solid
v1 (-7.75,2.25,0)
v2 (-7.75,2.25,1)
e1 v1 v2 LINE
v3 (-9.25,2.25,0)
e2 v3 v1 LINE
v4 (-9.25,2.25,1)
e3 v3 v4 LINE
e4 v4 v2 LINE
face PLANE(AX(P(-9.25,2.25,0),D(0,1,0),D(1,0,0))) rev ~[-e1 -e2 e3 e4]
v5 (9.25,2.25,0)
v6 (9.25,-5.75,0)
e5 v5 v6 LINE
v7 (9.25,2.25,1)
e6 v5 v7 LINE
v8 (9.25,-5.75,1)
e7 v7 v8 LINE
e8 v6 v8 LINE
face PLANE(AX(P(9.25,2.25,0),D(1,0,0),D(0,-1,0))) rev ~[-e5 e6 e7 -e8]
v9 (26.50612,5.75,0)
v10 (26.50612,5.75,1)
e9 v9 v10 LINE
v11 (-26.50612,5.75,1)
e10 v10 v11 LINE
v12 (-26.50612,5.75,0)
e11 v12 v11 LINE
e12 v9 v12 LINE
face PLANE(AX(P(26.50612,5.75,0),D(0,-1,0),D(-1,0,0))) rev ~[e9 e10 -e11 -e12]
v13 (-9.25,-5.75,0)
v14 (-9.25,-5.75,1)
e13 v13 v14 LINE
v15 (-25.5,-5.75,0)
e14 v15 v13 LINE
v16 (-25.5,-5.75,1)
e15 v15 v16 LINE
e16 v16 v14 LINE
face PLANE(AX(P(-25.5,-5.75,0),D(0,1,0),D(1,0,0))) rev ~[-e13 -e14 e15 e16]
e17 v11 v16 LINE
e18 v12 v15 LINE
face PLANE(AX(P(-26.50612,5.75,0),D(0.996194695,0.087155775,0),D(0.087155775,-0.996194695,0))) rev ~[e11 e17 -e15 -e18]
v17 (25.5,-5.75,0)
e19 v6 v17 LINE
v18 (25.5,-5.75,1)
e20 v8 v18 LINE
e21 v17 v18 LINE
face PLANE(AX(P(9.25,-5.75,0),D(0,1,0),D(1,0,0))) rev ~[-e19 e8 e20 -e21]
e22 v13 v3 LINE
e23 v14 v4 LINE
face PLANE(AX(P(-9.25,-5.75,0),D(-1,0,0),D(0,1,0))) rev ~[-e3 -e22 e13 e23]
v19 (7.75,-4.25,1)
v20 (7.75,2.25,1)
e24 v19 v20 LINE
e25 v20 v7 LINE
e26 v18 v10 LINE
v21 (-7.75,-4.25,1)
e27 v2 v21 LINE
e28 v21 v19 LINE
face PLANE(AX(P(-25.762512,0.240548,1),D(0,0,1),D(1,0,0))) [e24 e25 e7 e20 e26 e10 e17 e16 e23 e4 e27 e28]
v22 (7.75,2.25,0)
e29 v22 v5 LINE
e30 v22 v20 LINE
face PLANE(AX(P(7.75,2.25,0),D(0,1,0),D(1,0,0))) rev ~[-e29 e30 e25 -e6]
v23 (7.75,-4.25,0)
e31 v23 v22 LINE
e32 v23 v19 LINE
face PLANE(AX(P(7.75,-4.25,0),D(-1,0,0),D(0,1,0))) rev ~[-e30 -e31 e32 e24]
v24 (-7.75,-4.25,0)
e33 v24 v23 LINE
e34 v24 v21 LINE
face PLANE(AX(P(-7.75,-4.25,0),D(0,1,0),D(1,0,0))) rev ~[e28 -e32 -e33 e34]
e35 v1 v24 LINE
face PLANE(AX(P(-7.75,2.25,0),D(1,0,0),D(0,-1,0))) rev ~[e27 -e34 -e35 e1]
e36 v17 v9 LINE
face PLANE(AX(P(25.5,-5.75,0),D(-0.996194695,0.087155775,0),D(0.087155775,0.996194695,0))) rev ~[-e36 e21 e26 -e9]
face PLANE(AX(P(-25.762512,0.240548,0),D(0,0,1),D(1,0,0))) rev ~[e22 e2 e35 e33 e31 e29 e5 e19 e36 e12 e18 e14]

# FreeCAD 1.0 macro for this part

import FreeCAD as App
import Part
import Sketcher
from FreeCAD import Vector
Q = App.Units.Quantity

doc = App.newDocument("Part")
params = doc.addObject("Spreadsheet::Sheet", "Params")
for row, (alias, value) in enumerate([
    ("sketch1_height", "8 mm"),
    ("sketch1_width", "1.5 mm"),
    ("sketch1_width2", "15.5 mm"),
    ("sketch1_height2", "6.5 mm"),
    ("sketch1_width3", "16.25 mm"),
    ("pad1_length", "1 mm"),
], start=1):
    params.set(f"A{row}", alias)
    params.set(f"B{row}", "=" + value)
    params.setAlias(f"B{row}", alias)

body = doc.addObject("PartDesign::Body", "Body")

# Sketch on XY plane
sketch1 = doc.addObject("Sketcher::SketchObject", "Sketch")
body.addObject(sketch1)
sketch1.AttachmentSupport = (doc.XY_Plane, [""])
sketch1.MapMode = "FlatFace"
sketch1.addGeometry(Part.LineSegment(Vector(-26.5, 5.8, 0), Vector(-25.5, -5.8, 0)), False)
sketch1.addGeometry(Part.LineSegment(Vector(-25.5, -5.8, 0), Vector(-9.2, -5.8, 0)), False)
sketch1.addGeometry(Part.LineSegment(Vector(-9.2, -5.8, 0), Vector(-9.2, 2.2, 0)), False)
sketch1.addGeometry(Part.LineSegment(Vector(-9.2, 2.2, 0), Vector(-7.8, 2.2, 0)), False)
sketch1.addGeometry(Part.LineSegment(Vector(-7.8, 2.2, 0), Vector(-7.8, -4.2, 0)), False)
sketch1.addGeometry(Part.LineSegment(Vector(-7.8, -4.2, 0), Vector(7.8, -4.2, 0)), False)
sketch1.addGeometry(Part.LineSegment(Vector(7.8, -4.2, 0), Vector(7.8, 2.2, 0)), False)
sketch1.addGeometry(Part.LineSegment(Vector(7.8, 2.2, 0), Vector(9.2, 2.2, 0)), False)
sketch1.addGeometry(Part.LineSegment(Vector(9.2, 2.2, 0), Vector(9.2, -5.8, 0)), False)
sketch1.addGeometry(Part.LineSegment(Vector(9.2, -5.8, 0), Vector(25.5, -5.8, 0)), False)
sketch1.addGeometry(Part.LineSegment(Vector(25.5, -5.8, 0), Vector(26.5, 5.8, 0)), False)
sketch1.addGeometry(Part.LineSegment(Vector(26.5, 5.8, 0), Vector(-26.5, 5.8, 0)), False)
sketch1.addConstraint(Sketcher.Constraint("Coincident", 0, 2, 1, 1))
sketch1.addConstraint(Sketcher.Constraint("Coincident", 1, 2, 2, 1))
sketch1.addConstraint(Sketcher.Constraint("Coincident", 2, 2, 3, 1))
sketch1.addConstraint(Sketcher.Constraint("Coincident", 3, 2, 4, 1))
sketch1.addConstraint(Sketcher.Constraint("Coincident", 4, 2, 5, 1))
sketch1.addConstraint(Sketcher.Constraint("Coincident", 5, 2, 6, 1))
sketch1.addConstraint(Sketcher.Constraint("Coincident", 6, 2, 7, 1))
sketch1.addConstraint(Sketcher.Constraint("Coincident", 7, 2, 8, 1))
sketch1.addConstraint(Sketcher.Constraint("Coincident", 8, 2, 9, 1))
sketch1.addConstraint(Sketcher.Constraint("Coincident", 9, 2, 10, 1))
sketch1.addConstraint(Sketcher.Constraint("Coincident", 10, 2, 11, 1))
sketch1.addConstraint(Sketcher.Constraint("Coincident", 11, 2, 0, 1))
sketch1.addConstraint(Sketcher.Constraint("Horizontal", 1))
sketch1.addConstraint(Sketcher.Constraint("Vertical", 2))
sketch1.addConstraint(Sketcher.Constraint("Horizontal", 3))
sketch1.addConstraint(Sketcher.Constraint("Vertical", 4))
sketch1.addConstraint(Sketcher.Constraint("Horizontal", 5))
sketch1.addConstraint(Sketcher.Constraint("Vertical", 6))
sketch1.addConstraint(Sketcher.Constraint("Horizontal", 7))
sketch1.addConstraint(Sketcher.Constraint("Vertical", 8))
sketch1.addConstraint(Sketcher.Constraint("Horizontal", 9))
sketch1.addConstraint(Sketcher.Constraint("Horizontal", 11))
sketch1.addConstraint(Sketcher.Constraint("Symmetric", 3, 2, 6, 2, -2))
sketch1.addConstraint(Sketcher.Constraint("Symmetric", 1, 2, 8, 2, -2))
sketch1.addConstraint(Sketcher.Constraint("Equal", 1, 9))
sketch1.addConstraint(Sketcher.Constraint("Equal", 0, 10))
sketch1.addConstraint(Sketcher.Constraint("DistanceY", 2, 1, 2, 2, Q("8 mm")))
sketch1.addConstraint(Sketcher.Constraint("Angle", 0, Q("-84.999998 deg")))
sketch1.addConstraint(Sketcher.Constraint("DistanceX", 3, 1, 3, 2, Q("1.5 mm")))
sketch1.addConstraint(Sketcher.Constraint("DistanceX", 5, 1, 5, 2, Q("15.5 mm")))
sketch1.addConstraint(Sketcher.Constraint("DistanceY", 4, 2, 4, 1, Q("6.5 mm")))
sketch1.addConstraint(Sketcher.Constraint("DistanceY", 5, 2, 10, 2, Q("10 mm")))
sketch1.addConstraint(Sketcher.Constraint("DistanceX", 1, 1, 1, 2, Q("16.25 mm")))
sketch1.addConstraint(Sketcher.Constraint("DistanceY", 0, 2, -1, 1, Q("5.75 mm")))
sketch1.setExpression("Constraints[26]", "Params.sketch1_height")
sketch1.setExpression("Constraints[28]", "Params.sketch1_width")
sketch1.setExpression("Constraints[29]", "Params.sketch1_width2")
sketch1.setExpression("Constraints[30]", "Params.sketch1_height2")
sketch1.setExpression("Constraints[32]", "Params.sketch1_width3")
pad1 = doc.addObject("PartDesign::Pad", "Pad")
body.addObject(pad1)
pad1.Profile = sketch1
pad1.setExpression("Length", "Params.pad1_length")

doc.recompute()
